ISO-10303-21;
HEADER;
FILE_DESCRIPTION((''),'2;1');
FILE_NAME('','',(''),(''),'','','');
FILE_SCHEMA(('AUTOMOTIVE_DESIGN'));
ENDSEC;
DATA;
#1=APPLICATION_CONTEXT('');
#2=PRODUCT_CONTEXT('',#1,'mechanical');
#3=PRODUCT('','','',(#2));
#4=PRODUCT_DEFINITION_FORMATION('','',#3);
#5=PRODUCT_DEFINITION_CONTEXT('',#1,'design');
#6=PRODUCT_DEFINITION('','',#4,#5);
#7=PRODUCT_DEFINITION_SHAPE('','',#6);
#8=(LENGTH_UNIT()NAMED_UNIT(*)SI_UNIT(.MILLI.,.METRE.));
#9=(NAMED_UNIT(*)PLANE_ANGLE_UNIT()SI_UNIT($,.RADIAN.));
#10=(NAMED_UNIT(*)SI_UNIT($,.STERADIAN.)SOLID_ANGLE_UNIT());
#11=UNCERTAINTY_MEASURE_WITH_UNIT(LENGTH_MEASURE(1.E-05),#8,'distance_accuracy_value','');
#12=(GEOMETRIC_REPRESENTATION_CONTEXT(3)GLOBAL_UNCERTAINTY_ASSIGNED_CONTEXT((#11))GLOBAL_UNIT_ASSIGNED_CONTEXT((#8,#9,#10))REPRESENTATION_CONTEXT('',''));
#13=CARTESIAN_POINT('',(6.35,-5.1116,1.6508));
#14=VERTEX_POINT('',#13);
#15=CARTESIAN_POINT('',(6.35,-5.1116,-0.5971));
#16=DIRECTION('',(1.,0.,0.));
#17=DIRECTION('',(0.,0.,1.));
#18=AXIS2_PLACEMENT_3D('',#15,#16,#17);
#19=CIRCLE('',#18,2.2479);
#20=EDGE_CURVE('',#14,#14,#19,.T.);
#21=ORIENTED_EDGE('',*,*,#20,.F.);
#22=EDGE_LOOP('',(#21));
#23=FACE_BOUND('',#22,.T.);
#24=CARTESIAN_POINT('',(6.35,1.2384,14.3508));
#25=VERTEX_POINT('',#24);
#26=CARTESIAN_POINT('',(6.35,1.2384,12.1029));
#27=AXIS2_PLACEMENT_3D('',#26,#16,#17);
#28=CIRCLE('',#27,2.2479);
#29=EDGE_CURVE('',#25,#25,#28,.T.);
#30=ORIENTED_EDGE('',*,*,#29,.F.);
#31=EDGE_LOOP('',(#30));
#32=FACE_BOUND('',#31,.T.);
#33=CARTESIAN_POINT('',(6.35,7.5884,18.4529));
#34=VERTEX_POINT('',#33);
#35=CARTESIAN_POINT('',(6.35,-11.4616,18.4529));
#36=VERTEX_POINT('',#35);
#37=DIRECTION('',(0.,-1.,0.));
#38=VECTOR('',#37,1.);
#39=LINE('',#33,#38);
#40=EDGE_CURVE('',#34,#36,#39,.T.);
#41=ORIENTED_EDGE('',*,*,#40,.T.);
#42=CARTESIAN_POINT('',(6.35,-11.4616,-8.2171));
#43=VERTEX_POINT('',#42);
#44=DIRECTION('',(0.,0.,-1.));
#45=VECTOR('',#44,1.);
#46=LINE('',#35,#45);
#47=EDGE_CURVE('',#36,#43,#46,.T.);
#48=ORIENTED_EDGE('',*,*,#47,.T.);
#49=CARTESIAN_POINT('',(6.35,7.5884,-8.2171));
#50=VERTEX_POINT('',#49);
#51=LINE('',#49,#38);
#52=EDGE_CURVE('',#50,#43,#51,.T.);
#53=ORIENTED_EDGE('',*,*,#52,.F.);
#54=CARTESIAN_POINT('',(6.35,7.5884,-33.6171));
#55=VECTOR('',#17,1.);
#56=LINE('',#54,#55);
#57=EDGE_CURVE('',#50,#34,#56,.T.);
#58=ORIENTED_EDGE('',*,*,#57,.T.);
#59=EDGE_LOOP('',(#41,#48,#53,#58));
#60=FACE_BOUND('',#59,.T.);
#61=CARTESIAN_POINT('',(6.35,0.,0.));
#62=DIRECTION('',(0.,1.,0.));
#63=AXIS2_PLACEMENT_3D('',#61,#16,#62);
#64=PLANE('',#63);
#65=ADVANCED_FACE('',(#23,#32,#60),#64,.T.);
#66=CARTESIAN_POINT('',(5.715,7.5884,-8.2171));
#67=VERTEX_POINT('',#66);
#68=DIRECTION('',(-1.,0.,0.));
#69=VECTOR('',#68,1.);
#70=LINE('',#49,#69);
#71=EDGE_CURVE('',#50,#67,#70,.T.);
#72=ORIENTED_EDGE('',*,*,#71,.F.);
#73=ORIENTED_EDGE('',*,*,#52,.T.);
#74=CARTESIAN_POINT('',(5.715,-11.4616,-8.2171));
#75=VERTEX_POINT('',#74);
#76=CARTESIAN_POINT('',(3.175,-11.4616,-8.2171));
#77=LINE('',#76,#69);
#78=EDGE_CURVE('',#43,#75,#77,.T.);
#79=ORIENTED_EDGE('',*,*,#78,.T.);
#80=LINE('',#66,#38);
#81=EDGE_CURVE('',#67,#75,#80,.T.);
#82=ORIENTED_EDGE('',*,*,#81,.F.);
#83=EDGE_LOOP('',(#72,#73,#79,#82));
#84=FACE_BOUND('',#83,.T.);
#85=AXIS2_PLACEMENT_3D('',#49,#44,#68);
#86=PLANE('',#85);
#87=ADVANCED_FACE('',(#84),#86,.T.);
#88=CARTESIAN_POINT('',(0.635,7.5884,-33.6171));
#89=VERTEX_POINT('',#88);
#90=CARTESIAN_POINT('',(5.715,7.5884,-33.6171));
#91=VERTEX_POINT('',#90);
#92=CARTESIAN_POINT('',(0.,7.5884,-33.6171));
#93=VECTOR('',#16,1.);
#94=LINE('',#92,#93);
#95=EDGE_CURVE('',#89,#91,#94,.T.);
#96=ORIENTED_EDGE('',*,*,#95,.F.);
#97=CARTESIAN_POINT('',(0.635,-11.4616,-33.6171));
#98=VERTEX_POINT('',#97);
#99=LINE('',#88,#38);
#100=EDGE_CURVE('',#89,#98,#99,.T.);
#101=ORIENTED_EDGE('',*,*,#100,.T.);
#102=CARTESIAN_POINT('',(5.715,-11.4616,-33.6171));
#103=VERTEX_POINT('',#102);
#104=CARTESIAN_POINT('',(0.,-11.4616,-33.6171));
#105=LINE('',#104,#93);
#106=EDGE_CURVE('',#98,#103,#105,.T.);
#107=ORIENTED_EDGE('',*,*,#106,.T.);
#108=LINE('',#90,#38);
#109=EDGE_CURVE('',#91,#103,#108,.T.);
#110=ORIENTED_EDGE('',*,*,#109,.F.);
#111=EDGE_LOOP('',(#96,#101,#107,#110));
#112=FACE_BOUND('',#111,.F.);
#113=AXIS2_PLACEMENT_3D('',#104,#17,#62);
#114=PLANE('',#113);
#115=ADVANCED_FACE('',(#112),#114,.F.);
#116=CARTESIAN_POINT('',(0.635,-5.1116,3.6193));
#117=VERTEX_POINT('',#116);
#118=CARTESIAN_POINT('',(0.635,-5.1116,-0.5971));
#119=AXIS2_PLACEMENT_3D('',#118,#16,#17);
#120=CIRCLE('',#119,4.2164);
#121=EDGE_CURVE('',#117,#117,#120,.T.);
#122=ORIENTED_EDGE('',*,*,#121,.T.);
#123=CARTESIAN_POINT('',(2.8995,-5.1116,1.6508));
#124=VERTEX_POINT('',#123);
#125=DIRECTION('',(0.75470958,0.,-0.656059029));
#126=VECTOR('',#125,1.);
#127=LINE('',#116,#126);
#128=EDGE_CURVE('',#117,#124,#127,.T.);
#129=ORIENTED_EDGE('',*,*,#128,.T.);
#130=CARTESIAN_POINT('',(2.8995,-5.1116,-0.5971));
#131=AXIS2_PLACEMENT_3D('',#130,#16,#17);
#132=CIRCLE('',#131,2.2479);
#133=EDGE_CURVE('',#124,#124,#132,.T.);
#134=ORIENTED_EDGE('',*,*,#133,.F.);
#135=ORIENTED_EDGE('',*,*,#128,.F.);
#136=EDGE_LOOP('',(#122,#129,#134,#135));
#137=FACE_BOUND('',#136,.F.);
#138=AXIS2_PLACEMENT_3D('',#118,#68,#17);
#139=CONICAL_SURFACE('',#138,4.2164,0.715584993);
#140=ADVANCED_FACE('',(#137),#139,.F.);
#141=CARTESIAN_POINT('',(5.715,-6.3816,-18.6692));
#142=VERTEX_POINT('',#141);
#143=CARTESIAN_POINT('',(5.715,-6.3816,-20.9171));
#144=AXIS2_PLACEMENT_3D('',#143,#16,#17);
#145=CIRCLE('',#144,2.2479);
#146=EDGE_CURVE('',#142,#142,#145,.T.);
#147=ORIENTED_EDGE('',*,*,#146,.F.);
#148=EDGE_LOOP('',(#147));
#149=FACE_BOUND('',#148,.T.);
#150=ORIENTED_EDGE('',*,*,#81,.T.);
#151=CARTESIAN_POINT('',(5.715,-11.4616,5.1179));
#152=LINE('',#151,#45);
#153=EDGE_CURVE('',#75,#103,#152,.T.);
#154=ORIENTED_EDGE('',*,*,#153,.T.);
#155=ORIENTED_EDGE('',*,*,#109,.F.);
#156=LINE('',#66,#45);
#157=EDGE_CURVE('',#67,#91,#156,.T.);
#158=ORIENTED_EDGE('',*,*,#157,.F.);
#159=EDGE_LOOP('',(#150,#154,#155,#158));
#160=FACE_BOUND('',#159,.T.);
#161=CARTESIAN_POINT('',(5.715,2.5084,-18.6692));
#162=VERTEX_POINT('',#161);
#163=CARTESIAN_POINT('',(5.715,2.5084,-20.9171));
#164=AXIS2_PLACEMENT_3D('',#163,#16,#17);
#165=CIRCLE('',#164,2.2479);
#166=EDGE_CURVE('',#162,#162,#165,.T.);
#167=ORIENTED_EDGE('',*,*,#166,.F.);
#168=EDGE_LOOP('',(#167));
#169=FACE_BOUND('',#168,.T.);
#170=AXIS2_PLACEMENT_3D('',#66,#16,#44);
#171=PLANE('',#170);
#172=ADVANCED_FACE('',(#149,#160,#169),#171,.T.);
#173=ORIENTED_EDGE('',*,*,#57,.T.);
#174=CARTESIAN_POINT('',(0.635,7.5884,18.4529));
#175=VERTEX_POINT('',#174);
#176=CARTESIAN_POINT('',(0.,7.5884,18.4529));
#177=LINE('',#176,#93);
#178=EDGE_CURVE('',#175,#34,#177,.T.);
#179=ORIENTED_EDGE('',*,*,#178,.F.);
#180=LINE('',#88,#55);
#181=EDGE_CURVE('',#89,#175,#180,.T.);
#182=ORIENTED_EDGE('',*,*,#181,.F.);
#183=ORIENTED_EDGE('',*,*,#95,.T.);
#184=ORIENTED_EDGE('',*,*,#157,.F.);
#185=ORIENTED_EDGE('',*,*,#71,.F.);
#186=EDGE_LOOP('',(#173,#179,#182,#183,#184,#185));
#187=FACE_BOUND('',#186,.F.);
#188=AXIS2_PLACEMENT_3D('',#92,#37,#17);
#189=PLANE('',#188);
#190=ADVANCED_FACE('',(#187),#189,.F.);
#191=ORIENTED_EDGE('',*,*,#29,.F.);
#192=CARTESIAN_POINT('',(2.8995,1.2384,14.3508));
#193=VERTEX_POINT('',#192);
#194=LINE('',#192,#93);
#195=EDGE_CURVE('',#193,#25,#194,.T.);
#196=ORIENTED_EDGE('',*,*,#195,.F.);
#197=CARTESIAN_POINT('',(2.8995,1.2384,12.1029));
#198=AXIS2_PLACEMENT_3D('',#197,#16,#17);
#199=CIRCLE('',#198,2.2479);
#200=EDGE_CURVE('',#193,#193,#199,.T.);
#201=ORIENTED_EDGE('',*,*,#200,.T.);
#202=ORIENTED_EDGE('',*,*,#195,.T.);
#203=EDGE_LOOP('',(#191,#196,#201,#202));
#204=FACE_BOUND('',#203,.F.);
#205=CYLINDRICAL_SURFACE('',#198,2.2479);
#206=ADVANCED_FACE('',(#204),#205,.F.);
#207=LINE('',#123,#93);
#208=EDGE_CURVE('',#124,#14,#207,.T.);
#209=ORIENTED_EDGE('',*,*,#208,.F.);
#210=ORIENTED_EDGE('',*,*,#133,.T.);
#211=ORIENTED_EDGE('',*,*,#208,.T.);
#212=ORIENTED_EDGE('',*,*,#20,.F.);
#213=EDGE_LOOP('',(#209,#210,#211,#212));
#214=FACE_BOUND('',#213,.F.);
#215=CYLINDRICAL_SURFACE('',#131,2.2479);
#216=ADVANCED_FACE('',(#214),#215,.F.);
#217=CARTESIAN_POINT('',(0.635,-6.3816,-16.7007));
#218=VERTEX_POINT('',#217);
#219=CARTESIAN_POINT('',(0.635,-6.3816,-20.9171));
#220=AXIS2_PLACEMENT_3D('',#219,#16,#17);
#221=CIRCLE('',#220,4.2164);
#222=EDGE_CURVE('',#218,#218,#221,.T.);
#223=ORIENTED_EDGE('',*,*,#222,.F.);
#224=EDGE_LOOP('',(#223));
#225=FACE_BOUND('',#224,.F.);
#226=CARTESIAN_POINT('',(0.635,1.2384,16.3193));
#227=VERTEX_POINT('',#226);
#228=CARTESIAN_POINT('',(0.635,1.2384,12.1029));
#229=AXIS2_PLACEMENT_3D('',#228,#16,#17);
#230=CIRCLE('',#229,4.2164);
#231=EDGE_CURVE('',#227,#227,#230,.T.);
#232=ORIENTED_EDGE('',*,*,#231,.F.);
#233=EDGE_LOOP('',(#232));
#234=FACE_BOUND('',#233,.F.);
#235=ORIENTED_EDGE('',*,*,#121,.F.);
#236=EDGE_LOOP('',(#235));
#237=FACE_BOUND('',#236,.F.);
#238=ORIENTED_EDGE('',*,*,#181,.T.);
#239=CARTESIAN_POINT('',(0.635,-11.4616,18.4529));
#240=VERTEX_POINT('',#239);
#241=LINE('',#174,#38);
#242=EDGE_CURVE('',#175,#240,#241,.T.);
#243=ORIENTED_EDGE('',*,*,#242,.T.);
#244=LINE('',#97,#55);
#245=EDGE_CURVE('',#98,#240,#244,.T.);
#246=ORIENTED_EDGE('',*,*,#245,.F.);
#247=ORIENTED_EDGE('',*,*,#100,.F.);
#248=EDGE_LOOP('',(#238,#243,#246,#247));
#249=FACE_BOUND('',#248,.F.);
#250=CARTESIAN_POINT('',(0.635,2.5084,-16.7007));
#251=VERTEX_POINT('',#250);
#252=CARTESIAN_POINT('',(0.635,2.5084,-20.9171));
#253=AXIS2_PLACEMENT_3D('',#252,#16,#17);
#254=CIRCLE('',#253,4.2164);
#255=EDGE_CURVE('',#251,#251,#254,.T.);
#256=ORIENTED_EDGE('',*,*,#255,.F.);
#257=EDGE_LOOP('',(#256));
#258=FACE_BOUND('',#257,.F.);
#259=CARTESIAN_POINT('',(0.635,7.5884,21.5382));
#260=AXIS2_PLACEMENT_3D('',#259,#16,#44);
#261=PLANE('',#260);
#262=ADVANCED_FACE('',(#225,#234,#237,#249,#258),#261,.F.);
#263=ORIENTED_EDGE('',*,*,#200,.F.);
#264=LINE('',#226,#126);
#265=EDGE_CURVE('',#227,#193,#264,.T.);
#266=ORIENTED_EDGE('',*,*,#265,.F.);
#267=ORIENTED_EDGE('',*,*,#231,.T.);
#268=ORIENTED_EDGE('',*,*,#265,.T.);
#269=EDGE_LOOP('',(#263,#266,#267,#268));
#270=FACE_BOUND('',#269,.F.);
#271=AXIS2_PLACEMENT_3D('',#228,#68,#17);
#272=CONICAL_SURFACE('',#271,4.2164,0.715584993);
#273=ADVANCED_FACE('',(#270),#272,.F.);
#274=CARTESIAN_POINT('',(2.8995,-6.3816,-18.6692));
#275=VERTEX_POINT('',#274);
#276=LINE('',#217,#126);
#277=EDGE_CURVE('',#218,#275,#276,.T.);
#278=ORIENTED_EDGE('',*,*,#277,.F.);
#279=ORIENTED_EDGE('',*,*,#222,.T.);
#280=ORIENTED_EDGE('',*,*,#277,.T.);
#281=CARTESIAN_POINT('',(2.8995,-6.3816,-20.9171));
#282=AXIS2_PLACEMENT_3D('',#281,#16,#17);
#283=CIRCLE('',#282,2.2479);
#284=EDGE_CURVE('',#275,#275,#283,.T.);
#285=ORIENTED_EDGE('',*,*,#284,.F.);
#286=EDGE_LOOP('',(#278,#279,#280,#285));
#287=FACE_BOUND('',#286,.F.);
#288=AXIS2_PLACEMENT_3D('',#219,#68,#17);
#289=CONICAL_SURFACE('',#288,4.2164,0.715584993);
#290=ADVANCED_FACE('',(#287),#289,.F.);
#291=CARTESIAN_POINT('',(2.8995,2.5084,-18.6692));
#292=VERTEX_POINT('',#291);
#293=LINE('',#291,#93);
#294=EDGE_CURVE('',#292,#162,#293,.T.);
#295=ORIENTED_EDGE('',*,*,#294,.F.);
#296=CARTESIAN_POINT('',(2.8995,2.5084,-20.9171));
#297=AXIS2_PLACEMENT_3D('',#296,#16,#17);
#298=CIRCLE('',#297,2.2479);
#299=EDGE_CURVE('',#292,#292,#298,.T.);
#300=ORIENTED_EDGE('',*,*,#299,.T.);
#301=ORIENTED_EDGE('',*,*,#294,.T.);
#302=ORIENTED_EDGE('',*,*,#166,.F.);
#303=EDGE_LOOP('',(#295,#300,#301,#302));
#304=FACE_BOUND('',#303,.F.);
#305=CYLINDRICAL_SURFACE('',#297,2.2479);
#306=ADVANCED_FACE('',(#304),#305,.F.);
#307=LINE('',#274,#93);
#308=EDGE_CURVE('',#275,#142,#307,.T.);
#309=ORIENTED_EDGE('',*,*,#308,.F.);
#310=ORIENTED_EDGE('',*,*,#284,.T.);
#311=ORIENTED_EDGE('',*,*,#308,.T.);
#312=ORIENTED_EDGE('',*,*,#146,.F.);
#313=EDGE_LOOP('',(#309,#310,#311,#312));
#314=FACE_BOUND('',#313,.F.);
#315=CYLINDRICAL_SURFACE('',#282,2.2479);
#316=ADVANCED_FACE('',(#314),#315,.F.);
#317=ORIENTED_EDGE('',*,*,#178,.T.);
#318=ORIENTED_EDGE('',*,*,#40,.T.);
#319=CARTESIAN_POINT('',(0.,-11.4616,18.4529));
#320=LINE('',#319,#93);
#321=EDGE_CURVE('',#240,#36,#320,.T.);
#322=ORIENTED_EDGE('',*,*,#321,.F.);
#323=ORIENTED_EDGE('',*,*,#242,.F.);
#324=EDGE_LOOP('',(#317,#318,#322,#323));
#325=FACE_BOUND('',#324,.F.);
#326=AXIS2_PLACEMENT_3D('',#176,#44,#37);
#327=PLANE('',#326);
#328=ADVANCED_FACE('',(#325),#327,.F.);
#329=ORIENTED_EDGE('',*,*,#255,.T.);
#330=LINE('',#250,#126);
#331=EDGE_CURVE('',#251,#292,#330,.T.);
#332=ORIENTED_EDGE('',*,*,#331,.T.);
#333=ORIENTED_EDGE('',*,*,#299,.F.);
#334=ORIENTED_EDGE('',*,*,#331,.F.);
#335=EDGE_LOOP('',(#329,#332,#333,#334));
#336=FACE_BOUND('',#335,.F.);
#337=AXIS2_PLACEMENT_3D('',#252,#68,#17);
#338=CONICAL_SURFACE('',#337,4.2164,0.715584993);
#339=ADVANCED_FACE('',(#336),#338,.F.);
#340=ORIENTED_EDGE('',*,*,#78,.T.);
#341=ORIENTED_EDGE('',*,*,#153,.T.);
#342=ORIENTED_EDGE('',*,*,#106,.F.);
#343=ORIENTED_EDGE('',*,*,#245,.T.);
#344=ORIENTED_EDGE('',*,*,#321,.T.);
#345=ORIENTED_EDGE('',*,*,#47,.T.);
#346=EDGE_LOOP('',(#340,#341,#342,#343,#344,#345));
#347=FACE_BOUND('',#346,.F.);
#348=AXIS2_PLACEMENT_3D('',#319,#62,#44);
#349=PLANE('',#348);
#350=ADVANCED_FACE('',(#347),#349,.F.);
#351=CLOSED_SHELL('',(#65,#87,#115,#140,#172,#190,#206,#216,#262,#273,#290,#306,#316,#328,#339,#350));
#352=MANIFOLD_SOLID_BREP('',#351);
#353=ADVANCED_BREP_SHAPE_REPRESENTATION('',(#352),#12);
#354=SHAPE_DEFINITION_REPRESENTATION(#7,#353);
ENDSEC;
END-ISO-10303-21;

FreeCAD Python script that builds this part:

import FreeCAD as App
import Part
import Sketcher
from FreeCAD import Vector
Q = App.Units.Quantity

doc = App.newDocument("Part")
body = doc.addObject("PartDesign::Body", "Body")

sketch1 = body.newObject("Sketcher::SketchObject", "Sketch")
sketch1.AttachmentSupport = (doc.getObject("YZ_Plane"), [""])
sketch1.MapMode = "FlatFace"
sketch1.addGeometry([
    Part.LineSegment(Vector(7.5884, -33.6171, 0), Vector(7.5884, 18.4529, 0)),
    Part.LineSegment(Vector(7.5884, 18.4529, 0), Vector(-11.4616, 18.4529, 0)),
    Part.LineSegment(Vector(-11.4616, 18.4529, 0), Vector(-11.4616, -33.6171, 0)),
    Part.LineSegment(Vector(-11.4616, -33.6171, 0), Vector(7.5884, -33.6171, 0)),
], False)
sketch1.addConstraint([
    Sketcher.Constraint("Coincident", 0, 2, 1, 1),
    Sketcher.Constraint("Coincident", 1, 2, 2, 1),
    Sketcher.Constraint("Coincident", 2, 2, 3, 1),
    Sketcher.Constraint("Coincident", 3, 2, 0, 1),
    Sketcher.Constraint("Vertical", 0),
    Sketcher.Constraint("Horizontal", 1),
    Sketcher.Constraint("Vertical", 2),
    Sketcher.Constraint("Horizontal", 3),
    Sketcher.Constraint("DistanceX", 1, 2, 1, 1, Q("0.75 in")),
    Sketcher.Constraint("DistanceY", 0, 1, 0, 2, Q("2.05 in")),
    Sketcher.Constraint("DistanceY", -1, 1, 0, 2, Q("0.7265 in")),
    Sketcher.Constraint("DistanceX", -1, 1, 0, 2, Q("7.5884 mm")),
])
pad1 = body.newObject("PartDesign::Pad", "Pad")
pad1.Profile = sketch1
pad1.Length = Q("0.25 in")

sketch2 = body.newObject("Sketcher::SketchObject", "Sketch001")
sketch2.AttachmentSupport = (doc.getObject("XZ_Plane"), [""])
sketch2.MapMode = "FlatFace"
sketch2.AttachmentOffset = App.Placement(Vector(0, 0, -7.5884), App.Rotation())
sketch2.addGeometry([
    Part.LineSegment(Vector(0, -33.6171, 0), Vector(0, -8.2171, 0)),
    Part.LineSegment(Vector(0, -8.2171, 0), Vector(0.635, -8.2171, 0)),
    Part.LineSegment(Vector(0.635, -8.2171, 0), Vector(0.635, -33.6171, 0)),
    Part.LineSegment(Vector(0.635, -33.6171, 0), Vector(0, -33.6171, 0)),
    Part.LineSegment(Vector(6.35, -33.6171, 0), Vector(5.715, -33.6171, 0)),
    Part.LineSegment(Vector(5.715, -33.6171, 0), Vector(5.715, -8.2171, 0)),
    Part.LineSegment(Vector(5.715, -8.2171, 0), Vector(6.35, -8.2171, 0)),
    Part.LineSegment(Vector(6.35, -8.2171, 0), Vector(6.35, -33.6171, 0)),
], False)
sketch2.addConstraint([
    Sketcher.Constraint("Coincident", 0, 2, 1, 1),
    Sketcher.Constraint("Coincident", 1, 2, 2, 1),
    Sketcher.Constraint("Coincident", 2, 2, 3, 1),
    Sketcher.Constraint("Coincident", 3, 2, 0, 1),
    Sketcher.Constraint("Coincident", 4, 2, 5, 1),
    Sketcher.Constraint("Coincident", 5, 2, 6, 1),
    Sketcher.Constraint("Coincident", 6, 2, 7, 1),
    Sketcher.Constraint("Coincident", 7, 2, 4, 1),
    Sketcher.Constraint("Vertical", 0),
    Sketcher.Constraint("Horizontal", 1),
    Sketcher.Constraint("Vertical", 2),
    Sketcher.Constraint("Horizontal", 3),
    Sketcher.Constraint("Horizontal", 4),
    Sketcher.Constraint("Vertical", 5),
    Sketcher.Constraint("Horizontal", 6),
    Sketcher.Constraint("Vertical", 7),
    Sketcher.Constraint("PointOnObject", 0, 2, -2),
    Sketcher.Constraint("Horizontal", 3, 2, 4, 2),
    Sketcher.Constraint("Horizontal", 1, 2, 5, 2),
    Sketcher.Constraint("Equal", 3, 4),
    Sketcher.Constraint("DistanceY", 0, 1, 0, 2, Q("1 in")),
    Sketcher.Constraint("DistanceX", 1, 1, 1, 2, Q("0.025 in")),
    Sketcher.Constraint("DistanceX", 2, 2, 4, 2, Q("0.2 in")),
    Sketcher.Constraint("DistanceY", 0, 2, -1, 1, Q("0.3235 in")),
])
pocket1 = body.newObject("PartDesign::Pocket", "Pocket")
pocket1.Profile = sketch2
pocket1.Length = Q("2 in")
pocket1.Reversed = True

sketch3 = body.newObject("Sketcher::SketchObject", "Sketch002")
sketch3.AttachmentSupport = (doc.getObject("XZ_Plane"), [""])
sketch3.MapMode = "FlatFace"
sketch3.AttachmentOffset = App.Placement(Vector(0, 0, -7.5884), App.Rotation())
sketch3.addGeometry([
    Part.LineSegment(Vector(0.635, 21.5382, 0), Vector(0.635, -16.3072, 0)),
    Part.LineSegment(Vector(0.635, -16.3072, 0), Vector(-3.8704, -16.3072, 0)),
    Part.LineSegment(Vector(-3.8704, -16.3072, 0), Vector(-3.8704, 21.5382, 0)),
    Part.LineSegment(Vector(-3.8704, 21.5382, 0), Vector(0.635, 21.5382, 0)),
], False)
sketch3.addConstraint([
    Sketcher.Constraint("Coincident", 0, 2, 1, 1),
    Sketcher.Constraint("Coincident", 1, 2, 2, 1),
    Sketcher.Constraint("Coincident", 2, 2, 3, 1),
    Sketcher.Constraint("Coincident", 3, 2, 0, 1),
    Sketcher.Constraint("Vertical", 0),
    Sketcher.Constraint("Horizontal", 1),
    Sketcher.Constraint("Vertical", 2),
    Sketcher.Constraint("Horizontal", 3),
    Sketcher.Constraint("DistanceX", -1, 1, 0, 2, Q("0.025 in")),
    Sketcher.Constraint("DistanceX", 1, 2, 1, 1, Q("4.5054 mm")),
    Sketcher.Constraint("DistanceY", 0, 2, 0, 1, Q("37.8454 mm")),
    Sketcher.Constraint("DistanceY", 0, 2, -1, 1, Q("16.3072 mm")),
])
pocket2 = body.newObject("PartDesign::Pocket", "Pocket001")
pocket2.Profile = sketch3
pocket2.Length = Q("1 in")
pocket2.Reversed = True

sketch4 = body.newObject("Sketcher::SketchObject", "Sketch003")
sketch4.AttachmentSupport = (doc.getObject("YZ_Plane"), [""])
sketch4.MapMode = "FlatFace"
sketch4.AttachmentOffset = App.Placement(Vector(0, 0, 0.025 * 25.4), App.Rotation())
sketch4.addGeometry([
    Part.Circle(Vector(1.2384, 12.1029, 0), Vector(0, 0, 1), 2.2479),
    Part.Circle(Vector(-5.1116, -0.5971, 0), Vector(0, 0, 1), 2.2479),
    Part.Circle(Vector(2.5084, -20.9171, 0), Vector(0, 0, 1), 2.2479),
    Part.Circle(Vector(-6.3816, -20.9171, 0), Vector(0, 0, 1), 2.2479),
], False)
sketch4.addConstraint([
    Sketcher.Constraint("Equal", 0, 1),
    Sketcher.Constraint("Equal", 1, 2),
    Sketcher.Constraint("Equal", 2, 3),
    Sketcher.Constraint("Horizontal", 2, 3, 3, 3),
    Sketcher.Constraint("Diameter", 0, Q("0.177 in")),
    Sketcher.Constraint("DistanceY", 1, 3, 0, 3, Q("0.5 in")),
    Sketcher.Constraint("DistanceX", 1, 3, 2, 3, Q("0.3 in")),
    Sketcher.Constraint("DistanceY", 2, 3, 1, 3, Q("0.8 in")),
    Sketcher.Constraint("DistanceX", 3, 3, 0, 3, Q("0.3 in")),
    Sketcher.Constraint("DistanceX", 1, 3, 0, 3, Q("0.25 in")),
    Sketcher.Constraint("DistanceY", -1, 1, 0, 3, Q("0.4765 in")),
    Sketcher.Constraint("DistanceX", -1, 1, 0, 3, Q("1.2384 mm")),
])
doc.recompute()
hole = body.newObject("PartDesign::Hole", "Hole")
hole.Profile = sketch4
hole.ThreadType = "None"
hole.Diameter = Q("0.177 in")
hole.DepthType = "ThroughAll"
hole.HoleCutType = "Countersink"
hole.HoleCutDiameter = Q("0.332 in")
hole.HoleCutCountersinkAngle = 82
hole.Reversed = True

doc.recompute()
